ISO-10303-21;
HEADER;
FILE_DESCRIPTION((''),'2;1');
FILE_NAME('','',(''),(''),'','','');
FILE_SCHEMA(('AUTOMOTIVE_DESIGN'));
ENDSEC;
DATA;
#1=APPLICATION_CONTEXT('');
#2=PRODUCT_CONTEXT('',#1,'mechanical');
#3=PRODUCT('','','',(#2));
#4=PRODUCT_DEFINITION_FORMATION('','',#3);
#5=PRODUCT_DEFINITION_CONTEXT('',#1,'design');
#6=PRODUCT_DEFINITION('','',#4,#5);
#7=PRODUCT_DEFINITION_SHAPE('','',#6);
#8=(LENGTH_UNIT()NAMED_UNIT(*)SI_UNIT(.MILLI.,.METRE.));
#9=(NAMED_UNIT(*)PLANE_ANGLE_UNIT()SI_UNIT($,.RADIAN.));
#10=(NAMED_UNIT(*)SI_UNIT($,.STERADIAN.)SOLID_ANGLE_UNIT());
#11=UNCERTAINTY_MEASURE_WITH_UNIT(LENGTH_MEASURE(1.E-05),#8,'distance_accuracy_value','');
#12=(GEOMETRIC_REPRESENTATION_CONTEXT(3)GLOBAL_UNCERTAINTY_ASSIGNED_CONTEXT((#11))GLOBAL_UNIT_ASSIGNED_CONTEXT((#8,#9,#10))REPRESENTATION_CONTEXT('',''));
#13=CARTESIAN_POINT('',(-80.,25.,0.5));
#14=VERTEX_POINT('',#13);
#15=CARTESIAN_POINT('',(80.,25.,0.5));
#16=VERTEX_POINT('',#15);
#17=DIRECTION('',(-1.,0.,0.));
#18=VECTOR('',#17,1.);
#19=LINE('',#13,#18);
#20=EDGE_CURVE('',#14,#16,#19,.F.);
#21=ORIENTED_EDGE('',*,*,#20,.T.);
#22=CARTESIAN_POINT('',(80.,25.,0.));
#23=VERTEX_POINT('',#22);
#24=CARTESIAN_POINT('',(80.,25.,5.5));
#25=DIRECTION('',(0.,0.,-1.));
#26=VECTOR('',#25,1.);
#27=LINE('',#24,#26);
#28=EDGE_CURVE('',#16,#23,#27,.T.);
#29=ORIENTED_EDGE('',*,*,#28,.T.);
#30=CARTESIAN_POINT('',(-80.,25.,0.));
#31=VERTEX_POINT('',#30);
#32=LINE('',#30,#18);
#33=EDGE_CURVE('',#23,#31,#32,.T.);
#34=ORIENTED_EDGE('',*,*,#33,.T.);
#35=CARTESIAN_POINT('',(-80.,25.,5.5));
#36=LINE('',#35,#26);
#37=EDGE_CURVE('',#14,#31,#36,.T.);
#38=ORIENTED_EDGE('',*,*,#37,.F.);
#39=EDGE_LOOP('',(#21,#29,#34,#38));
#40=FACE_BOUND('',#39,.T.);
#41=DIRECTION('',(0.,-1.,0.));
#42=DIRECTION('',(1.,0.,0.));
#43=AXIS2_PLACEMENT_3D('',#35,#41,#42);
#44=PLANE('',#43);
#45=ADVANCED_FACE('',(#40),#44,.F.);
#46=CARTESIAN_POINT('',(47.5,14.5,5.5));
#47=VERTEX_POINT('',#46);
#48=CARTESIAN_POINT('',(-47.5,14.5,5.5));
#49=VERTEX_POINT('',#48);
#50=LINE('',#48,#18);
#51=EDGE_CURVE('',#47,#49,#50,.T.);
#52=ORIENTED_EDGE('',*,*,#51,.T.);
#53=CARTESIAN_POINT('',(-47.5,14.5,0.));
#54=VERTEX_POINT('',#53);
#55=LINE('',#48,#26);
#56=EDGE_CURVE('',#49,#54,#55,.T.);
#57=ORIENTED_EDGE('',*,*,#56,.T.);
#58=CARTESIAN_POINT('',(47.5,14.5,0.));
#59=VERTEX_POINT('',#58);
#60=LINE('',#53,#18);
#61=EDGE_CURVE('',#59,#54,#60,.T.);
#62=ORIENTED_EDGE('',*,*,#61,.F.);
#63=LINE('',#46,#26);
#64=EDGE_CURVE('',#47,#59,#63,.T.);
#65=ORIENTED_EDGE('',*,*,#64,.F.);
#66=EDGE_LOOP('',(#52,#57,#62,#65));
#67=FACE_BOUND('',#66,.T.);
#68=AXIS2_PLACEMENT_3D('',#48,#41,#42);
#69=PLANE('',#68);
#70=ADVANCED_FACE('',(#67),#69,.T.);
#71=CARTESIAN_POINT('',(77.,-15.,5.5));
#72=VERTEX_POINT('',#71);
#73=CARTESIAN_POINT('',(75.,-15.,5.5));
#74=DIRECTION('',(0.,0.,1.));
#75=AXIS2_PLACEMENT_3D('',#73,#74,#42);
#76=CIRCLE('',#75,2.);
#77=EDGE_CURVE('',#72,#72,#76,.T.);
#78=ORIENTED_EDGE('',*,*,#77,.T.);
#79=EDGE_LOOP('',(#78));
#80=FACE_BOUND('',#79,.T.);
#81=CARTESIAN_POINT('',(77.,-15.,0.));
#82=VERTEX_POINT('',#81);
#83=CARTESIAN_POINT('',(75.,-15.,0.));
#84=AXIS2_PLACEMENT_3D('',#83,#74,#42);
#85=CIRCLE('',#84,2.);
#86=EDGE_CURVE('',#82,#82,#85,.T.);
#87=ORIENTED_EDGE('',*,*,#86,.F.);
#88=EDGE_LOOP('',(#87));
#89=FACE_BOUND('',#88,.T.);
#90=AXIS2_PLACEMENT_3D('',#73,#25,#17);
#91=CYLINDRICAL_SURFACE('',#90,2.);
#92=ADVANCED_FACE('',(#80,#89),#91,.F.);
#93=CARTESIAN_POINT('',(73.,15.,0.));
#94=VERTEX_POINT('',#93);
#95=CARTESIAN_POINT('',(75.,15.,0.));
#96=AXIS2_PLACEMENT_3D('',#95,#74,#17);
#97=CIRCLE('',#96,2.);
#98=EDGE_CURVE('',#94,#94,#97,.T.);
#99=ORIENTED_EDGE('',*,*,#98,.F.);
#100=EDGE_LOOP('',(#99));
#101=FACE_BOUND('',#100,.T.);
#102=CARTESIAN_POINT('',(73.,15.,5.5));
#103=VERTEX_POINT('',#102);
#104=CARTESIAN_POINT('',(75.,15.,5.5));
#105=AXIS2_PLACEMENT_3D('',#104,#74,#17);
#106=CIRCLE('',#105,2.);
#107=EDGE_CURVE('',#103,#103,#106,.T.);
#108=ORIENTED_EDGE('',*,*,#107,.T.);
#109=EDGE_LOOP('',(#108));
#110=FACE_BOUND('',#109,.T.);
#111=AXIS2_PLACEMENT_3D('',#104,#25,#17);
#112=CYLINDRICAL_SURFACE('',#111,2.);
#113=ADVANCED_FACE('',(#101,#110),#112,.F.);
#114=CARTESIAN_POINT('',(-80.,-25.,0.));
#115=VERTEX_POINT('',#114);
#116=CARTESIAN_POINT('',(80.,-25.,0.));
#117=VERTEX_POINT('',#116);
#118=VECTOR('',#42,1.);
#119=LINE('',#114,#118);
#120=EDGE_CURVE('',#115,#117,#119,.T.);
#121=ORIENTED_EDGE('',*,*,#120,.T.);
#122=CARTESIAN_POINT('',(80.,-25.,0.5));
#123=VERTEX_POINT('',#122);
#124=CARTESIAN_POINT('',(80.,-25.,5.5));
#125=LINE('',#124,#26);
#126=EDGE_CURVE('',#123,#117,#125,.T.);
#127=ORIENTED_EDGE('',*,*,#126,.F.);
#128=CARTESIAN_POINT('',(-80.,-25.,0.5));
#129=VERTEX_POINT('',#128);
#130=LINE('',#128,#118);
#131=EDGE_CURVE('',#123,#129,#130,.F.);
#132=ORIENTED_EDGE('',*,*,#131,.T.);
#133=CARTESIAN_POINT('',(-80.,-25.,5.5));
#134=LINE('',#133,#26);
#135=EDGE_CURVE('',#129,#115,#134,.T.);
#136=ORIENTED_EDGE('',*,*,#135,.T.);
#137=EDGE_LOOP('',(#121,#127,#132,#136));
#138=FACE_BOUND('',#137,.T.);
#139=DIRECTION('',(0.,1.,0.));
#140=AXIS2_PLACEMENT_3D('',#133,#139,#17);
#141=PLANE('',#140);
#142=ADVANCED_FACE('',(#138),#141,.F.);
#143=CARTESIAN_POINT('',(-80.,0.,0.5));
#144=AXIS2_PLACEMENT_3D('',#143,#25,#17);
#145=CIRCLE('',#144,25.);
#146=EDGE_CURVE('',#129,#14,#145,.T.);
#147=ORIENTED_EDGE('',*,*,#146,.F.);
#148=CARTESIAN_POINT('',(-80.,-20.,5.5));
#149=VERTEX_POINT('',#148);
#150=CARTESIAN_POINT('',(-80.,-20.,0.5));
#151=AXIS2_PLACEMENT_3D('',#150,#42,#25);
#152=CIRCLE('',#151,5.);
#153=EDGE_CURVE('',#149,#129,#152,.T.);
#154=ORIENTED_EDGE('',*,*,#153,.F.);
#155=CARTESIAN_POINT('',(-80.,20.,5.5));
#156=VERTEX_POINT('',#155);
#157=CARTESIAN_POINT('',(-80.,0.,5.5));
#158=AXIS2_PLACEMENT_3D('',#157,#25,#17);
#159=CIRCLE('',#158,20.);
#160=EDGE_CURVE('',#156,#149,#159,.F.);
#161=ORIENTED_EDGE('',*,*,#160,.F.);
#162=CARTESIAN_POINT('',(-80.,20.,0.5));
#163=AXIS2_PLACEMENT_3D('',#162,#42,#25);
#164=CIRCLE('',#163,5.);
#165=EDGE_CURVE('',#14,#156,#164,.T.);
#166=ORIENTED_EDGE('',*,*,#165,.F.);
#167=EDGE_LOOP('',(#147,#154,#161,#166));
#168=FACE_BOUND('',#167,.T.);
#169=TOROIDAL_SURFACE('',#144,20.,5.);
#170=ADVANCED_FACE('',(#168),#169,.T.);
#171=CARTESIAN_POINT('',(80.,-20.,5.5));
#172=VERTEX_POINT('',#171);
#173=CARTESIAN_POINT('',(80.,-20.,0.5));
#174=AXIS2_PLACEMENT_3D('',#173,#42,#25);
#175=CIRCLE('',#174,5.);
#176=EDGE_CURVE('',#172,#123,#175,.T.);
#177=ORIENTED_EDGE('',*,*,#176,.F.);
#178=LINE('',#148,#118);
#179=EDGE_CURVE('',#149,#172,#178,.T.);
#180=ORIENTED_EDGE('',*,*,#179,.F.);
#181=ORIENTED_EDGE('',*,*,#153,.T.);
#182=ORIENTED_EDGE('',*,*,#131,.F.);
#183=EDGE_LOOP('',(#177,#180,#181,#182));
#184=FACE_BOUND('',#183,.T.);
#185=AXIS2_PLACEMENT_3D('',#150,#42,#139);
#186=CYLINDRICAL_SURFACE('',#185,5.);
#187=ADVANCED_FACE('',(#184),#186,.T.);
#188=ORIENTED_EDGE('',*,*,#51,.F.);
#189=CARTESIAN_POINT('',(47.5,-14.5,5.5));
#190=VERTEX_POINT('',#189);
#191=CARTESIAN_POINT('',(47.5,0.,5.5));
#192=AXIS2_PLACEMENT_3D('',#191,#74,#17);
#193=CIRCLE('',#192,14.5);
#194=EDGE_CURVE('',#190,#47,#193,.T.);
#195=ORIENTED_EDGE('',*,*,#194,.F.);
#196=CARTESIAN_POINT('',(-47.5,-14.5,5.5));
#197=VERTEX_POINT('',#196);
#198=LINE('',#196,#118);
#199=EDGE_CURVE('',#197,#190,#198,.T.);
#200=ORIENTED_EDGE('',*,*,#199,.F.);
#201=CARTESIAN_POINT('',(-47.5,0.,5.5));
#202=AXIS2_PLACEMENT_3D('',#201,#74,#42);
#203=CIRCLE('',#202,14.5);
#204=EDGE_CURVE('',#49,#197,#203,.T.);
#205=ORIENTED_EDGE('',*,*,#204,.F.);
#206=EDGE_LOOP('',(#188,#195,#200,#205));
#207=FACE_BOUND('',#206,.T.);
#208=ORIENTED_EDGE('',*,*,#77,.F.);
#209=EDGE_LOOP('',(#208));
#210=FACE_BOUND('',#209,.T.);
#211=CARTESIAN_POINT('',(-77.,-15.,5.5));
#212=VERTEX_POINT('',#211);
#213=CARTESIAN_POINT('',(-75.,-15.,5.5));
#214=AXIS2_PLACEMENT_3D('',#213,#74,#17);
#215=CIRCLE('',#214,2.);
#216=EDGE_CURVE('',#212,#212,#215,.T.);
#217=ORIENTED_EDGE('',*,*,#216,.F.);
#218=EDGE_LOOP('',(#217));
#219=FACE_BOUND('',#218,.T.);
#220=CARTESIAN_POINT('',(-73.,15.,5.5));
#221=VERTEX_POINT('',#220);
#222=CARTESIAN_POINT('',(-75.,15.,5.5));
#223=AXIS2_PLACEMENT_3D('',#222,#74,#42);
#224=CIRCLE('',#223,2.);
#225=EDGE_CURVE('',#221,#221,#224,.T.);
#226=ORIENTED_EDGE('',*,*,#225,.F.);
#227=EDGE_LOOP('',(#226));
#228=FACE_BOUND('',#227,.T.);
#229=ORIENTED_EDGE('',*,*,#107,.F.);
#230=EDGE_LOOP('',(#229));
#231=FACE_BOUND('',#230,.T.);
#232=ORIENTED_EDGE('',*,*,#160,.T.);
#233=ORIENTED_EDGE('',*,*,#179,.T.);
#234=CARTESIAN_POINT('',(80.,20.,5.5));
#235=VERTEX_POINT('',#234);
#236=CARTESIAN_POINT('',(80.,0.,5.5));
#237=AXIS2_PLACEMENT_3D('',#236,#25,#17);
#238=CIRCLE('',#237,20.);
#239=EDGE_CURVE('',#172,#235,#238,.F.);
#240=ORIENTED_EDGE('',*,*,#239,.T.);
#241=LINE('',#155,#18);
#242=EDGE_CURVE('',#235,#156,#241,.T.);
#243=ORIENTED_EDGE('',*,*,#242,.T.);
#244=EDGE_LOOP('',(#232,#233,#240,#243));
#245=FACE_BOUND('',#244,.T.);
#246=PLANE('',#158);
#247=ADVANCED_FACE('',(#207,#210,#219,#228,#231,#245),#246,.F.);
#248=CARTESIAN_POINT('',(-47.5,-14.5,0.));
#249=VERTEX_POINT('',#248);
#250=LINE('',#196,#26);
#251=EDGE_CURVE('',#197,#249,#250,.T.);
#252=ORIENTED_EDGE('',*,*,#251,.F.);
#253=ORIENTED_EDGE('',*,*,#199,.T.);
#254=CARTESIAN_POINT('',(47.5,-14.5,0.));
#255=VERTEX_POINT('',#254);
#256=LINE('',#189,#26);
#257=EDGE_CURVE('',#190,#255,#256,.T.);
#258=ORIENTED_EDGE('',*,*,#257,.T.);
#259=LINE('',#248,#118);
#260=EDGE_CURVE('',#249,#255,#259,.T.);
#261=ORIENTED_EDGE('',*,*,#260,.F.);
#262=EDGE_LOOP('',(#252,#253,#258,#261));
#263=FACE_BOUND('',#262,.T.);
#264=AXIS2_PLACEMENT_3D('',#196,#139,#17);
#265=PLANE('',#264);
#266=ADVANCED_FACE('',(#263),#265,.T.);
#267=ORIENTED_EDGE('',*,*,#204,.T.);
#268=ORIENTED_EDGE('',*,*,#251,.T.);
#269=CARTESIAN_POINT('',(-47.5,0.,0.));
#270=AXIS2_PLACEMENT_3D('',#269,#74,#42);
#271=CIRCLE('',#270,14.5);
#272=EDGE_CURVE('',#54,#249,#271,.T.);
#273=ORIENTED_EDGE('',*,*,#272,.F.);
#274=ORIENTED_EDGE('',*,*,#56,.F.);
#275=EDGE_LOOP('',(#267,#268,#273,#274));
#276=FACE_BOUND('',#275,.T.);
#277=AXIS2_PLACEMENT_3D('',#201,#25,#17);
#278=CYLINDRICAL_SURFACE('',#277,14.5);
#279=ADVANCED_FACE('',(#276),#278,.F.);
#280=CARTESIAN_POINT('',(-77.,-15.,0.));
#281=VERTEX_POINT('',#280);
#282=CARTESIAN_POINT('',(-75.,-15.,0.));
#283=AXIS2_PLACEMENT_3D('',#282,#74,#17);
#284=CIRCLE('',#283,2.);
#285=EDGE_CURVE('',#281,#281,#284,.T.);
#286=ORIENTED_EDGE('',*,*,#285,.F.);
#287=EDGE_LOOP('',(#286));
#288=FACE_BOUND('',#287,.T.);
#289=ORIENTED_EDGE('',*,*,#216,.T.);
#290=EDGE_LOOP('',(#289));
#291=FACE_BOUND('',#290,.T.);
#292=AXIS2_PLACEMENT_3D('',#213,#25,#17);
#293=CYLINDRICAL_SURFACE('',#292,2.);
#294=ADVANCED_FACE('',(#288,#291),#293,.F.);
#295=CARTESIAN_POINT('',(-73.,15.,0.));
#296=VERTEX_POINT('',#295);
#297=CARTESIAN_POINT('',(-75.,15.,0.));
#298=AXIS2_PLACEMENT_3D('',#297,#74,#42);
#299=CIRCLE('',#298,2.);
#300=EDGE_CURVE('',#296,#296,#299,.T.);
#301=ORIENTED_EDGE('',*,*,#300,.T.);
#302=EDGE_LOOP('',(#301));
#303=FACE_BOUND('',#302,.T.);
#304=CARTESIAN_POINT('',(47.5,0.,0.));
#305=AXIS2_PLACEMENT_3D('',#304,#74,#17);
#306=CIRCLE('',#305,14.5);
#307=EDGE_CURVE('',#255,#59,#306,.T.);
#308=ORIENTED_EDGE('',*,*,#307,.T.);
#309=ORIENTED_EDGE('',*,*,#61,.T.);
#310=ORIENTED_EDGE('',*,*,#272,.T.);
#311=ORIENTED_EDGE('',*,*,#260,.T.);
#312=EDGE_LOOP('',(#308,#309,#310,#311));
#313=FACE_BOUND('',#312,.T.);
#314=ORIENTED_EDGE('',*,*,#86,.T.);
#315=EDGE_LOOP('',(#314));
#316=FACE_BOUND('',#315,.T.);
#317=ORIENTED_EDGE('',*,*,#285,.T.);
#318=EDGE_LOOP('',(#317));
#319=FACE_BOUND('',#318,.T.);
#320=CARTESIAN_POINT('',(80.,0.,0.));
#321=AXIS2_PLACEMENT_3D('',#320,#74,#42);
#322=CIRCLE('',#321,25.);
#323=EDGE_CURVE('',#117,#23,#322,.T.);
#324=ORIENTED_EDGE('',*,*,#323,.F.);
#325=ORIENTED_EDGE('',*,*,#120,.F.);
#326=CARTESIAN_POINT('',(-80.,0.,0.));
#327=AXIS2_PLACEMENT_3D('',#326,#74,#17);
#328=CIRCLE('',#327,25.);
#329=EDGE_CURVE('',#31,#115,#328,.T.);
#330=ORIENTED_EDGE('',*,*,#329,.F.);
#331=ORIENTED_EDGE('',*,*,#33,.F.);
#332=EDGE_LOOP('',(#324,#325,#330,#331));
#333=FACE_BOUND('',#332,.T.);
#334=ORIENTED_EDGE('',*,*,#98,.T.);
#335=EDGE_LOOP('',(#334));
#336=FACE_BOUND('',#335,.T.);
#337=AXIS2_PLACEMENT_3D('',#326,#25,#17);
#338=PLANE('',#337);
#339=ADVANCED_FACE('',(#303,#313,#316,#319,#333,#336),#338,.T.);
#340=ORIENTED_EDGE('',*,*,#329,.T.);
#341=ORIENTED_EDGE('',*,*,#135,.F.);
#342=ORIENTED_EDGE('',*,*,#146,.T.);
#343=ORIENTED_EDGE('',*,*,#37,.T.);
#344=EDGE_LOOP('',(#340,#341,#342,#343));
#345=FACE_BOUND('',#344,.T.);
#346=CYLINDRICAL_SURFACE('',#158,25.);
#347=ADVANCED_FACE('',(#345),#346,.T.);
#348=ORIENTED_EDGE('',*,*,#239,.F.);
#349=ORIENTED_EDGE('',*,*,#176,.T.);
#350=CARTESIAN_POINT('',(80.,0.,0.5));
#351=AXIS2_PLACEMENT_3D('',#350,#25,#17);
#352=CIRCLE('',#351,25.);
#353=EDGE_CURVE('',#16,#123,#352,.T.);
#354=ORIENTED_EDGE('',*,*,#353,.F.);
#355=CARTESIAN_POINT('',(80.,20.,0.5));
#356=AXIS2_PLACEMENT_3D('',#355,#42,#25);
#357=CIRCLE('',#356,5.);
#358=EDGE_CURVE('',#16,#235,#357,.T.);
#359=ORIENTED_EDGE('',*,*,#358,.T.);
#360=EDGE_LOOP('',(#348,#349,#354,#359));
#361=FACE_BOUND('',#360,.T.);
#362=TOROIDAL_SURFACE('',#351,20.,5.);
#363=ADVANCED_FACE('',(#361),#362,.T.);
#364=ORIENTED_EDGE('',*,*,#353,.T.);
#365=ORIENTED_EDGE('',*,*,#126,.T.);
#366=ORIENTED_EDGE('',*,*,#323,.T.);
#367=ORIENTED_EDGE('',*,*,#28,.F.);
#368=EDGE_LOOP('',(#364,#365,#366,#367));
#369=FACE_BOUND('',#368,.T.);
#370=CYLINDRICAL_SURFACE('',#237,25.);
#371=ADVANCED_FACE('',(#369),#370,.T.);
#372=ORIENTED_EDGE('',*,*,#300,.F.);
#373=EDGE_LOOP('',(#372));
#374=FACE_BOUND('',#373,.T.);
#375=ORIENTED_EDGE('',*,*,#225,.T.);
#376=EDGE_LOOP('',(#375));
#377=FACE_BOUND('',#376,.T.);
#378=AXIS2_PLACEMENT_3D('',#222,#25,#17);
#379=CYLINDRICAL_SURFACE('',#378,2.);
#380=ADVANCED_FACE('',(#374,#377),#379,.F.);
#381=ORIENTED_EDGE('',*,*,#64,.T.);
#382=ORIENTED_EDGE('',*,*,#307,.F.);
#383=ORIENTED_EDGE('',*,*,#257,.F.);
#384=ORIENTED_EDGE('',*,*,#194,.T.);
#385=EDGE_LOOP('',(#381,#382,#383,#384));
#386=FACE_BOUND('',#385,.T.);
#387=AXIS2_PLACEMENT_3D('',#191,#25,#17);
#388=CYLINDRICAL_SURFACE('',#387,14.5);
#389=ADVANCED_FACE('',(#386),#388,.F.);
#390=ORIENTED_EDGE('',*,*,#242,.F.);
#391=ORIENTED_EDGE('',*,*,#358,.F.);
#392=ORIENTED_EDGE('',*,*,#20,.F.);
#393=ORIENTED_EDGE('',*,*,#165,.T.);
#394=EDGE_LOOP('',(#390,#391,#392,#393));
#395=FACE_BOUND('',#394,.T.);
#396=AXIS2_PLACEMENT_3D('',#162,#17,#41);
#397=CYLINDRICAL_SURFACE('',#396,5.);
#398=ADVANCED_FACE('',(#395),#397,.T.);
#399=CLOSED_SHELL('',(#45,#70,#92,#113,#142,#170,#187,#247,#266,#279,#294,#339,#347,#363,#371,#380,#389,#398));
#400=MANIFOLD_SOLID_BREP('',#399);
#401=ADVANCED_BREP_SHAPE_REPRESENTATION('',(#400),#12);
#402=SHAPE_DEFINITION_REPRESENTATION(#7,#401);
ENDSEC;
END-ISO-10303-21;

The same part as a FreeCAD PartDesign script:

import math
import FreeCAD as App
import Part
import Sketcher
Q = App.Units.Quantity


def edges_at(feature, points):
    """Names of the edges that pass closest to the given points."""
    edges = feature.Shape.Edges
    near = lambda p: min(range(len(edges)), key=lambda i: edges[i].distToShape(Part.Vertex(*p))[0])
    return sorted({f"Edge{near(p) + 1}" for p in points})

doc = App.newDocument("Part")
body = doc.addObject("PartDesign::Body", "Body")

# Sketch on XY plane
sketch1 = body.newObject("Sketcher::SketchObject", "Sketch")
sketch1.AttachmentSupport = (doc.getObject("XY_Plane"), [""])
sketch1.MapMode = "FlatFace"
sketch1.addGeometry(Part.LineSegment(App.Vector(-80, -25, 0), App.Vector(80, -25, 0)), False)
sketch1.addGeometry(Part.ArcOfCircle(Part.Circle(App.Vector(80, 0, 0), App.Vector(0, 0, 1), 25), math.radians(-90), math.radians(90)), False)
sketch1.addGeometry(Part.LineSegment(App.Vector(80, 25, 0), App.Vector(-80, 25, 0)), False)
sketch1.addGeometry(Part.ArcOfCircle(Part.Circle(App.Vector(-80, 0, 0), App.Vector(0, 0, 1), 25), math.radians(90), math.radians(270)), False)
sketch1.addGeometry(Part.Circle(App.Vector(-75, -15, 0), App.Vector(0, 0, 1), 2), False)
sketch1.addGeometry(Part.Circle(App.Vector(75, -15, 0), App.Vector(0, 0, 1), 2), False)
sketch1.addGeometry(Part.Circle(App.Vector(-75, 15, 0), App.Vector(0, 0, 1), 2), False)
sketch1.addGeometry(Part.ArcOfCircle(Part.Circle(App.Vector(-47.5, 0, 0), App.Vector(0, 0, 1), 14.5), math.radians(90), math.radians(270)), False)
sketch1.addGeometry(Part.LineSegment(App.Vector(-47.5, 14.5, 0), App.Vector(47.5, 14.5, 0)), False)
sketch1.addGeometry(Part.ArcOfCircle(Part.Circle(App.Vector(47.5, 0, 0), App.Vector(0, 0, 1), 14.5), math.radians(-90), math.radians(90)), False)
sketch1.addGeometry(Part.LineSegment(App.Vector(47.5, -14.5, 0), App.Vector(-47.5, -14.5, 0)), False)
sketch1.addGeometry(Part.Circle(App.Vector(75, 15, 0), App.Vector(0, 0, 1), 2), False)
sketch1.addConstraint(Sketcher.Constraint("Tangent", 0, 2, 1, 1))
sketch1.addConstraint(Sketcher.Constraint("Tangent", 1, 2, 2, 1))
sketch1.addConstraint(Sketcher.Constraint("Tangent", 2, 2, 3, 1))
sketch1.addConstraint(Sketcher.Constraint("Tangent", 3, 2, 0, 1))
sketch1.addConstraint(Sketcher.Constraint("Tangent", 7, 1, 8, 1))
sketch1.addConstraint(Sketcher.Constraint("Tangent", 8, 2, 9, 2))
sketch1.addConstraint(Sketcher.Constraint("Tangent", 9, 1, 10, 1))
sketch1.addConstraint(Sketcher.Constraint("Tangent", 10, 2, 7, 2))
sketch1.addConstraint(Sketcher.Constraint("Horizontal", 0))
sketch1.addConstraint(Sketcher.Constraint("Horizontal", 2))
sketch1.addConstraint(Sketcher.Constraint("Horizontal", 8))
sketch1.addConstraint(Sketcher.Constraint("Horizontal", 10))
sketch1.addConstraint(Sketcher.Constraint("Equal", 4, 5))
sketch1.addConstraint(Sketcher.Constraint("Equal", 5, 6))
sketch1.addConstraint(Sketcher.Constraint("Equal", 6, 11))
sketch1.addConstraint(Sketcher.Constraint("Symmetric", 1, 3, 3, 3, -1, 1))
sketch1.addConstraint(Sketcher.Constraint("Symmetric", 5, 3, 6, 3, -1, 1))
sketch1.addConstraint(Sketcher.Constraint("Symmetric", 7, 3, 9, 3, -1, 1))
sketch1.addConstraint(Sketcher.Constraint("Symmetric", 4, 3, 11, 3, -1, 1))
sketch1.addConstraint(Sketcher.Constraint("Symmetric", 4, 3, 5, 3, -2))
sketch1.addConstraint(Sketcher.Constraint("Diameter", 4, Q("4 mm")))
sketch1.addConstraint(Sketcher.Constraint("Radius", 1, Q("25 mm")))
sketch1.addConstraint(Sketcher.Constraint("Radius", 7, Q("14.5 mm")))
sketch1.addConstraint(Sketcher.Constraint("DistanceX", 0, 1, 0, 2, Q("160 mm")))
sketch1.addConstraint(Sketcher.Constraint("DistanceX", 8, 1, 8, 2, Q("95 mm")))
sketch1.addConstraint(Sketcher.Constraint("DistanceX", 4, 3, -1, 1, Q("75 mm")))
sketch1.addConstraint(Sketcher.Constraint("DistanceY", 4, 3, -1, 1, Q("15 mm")))
pad1 = body.newObject("PartDesign::Pad", "Pad")
pad1.Profile = sketch1
pad1.Length = 5.5
doc.recompute()

fillet = body.newObject("PartDesign::Fillet", "Fillet")
fillet.Base = (pad1, edges_at(pad1, [
    (105, 0, 5.5),
    (0, 25, 5.5),
    (-105, 0, 5.5),
    (0, -25, 5.5),
]))
fillet.Radius = 5

doc.recompute()
